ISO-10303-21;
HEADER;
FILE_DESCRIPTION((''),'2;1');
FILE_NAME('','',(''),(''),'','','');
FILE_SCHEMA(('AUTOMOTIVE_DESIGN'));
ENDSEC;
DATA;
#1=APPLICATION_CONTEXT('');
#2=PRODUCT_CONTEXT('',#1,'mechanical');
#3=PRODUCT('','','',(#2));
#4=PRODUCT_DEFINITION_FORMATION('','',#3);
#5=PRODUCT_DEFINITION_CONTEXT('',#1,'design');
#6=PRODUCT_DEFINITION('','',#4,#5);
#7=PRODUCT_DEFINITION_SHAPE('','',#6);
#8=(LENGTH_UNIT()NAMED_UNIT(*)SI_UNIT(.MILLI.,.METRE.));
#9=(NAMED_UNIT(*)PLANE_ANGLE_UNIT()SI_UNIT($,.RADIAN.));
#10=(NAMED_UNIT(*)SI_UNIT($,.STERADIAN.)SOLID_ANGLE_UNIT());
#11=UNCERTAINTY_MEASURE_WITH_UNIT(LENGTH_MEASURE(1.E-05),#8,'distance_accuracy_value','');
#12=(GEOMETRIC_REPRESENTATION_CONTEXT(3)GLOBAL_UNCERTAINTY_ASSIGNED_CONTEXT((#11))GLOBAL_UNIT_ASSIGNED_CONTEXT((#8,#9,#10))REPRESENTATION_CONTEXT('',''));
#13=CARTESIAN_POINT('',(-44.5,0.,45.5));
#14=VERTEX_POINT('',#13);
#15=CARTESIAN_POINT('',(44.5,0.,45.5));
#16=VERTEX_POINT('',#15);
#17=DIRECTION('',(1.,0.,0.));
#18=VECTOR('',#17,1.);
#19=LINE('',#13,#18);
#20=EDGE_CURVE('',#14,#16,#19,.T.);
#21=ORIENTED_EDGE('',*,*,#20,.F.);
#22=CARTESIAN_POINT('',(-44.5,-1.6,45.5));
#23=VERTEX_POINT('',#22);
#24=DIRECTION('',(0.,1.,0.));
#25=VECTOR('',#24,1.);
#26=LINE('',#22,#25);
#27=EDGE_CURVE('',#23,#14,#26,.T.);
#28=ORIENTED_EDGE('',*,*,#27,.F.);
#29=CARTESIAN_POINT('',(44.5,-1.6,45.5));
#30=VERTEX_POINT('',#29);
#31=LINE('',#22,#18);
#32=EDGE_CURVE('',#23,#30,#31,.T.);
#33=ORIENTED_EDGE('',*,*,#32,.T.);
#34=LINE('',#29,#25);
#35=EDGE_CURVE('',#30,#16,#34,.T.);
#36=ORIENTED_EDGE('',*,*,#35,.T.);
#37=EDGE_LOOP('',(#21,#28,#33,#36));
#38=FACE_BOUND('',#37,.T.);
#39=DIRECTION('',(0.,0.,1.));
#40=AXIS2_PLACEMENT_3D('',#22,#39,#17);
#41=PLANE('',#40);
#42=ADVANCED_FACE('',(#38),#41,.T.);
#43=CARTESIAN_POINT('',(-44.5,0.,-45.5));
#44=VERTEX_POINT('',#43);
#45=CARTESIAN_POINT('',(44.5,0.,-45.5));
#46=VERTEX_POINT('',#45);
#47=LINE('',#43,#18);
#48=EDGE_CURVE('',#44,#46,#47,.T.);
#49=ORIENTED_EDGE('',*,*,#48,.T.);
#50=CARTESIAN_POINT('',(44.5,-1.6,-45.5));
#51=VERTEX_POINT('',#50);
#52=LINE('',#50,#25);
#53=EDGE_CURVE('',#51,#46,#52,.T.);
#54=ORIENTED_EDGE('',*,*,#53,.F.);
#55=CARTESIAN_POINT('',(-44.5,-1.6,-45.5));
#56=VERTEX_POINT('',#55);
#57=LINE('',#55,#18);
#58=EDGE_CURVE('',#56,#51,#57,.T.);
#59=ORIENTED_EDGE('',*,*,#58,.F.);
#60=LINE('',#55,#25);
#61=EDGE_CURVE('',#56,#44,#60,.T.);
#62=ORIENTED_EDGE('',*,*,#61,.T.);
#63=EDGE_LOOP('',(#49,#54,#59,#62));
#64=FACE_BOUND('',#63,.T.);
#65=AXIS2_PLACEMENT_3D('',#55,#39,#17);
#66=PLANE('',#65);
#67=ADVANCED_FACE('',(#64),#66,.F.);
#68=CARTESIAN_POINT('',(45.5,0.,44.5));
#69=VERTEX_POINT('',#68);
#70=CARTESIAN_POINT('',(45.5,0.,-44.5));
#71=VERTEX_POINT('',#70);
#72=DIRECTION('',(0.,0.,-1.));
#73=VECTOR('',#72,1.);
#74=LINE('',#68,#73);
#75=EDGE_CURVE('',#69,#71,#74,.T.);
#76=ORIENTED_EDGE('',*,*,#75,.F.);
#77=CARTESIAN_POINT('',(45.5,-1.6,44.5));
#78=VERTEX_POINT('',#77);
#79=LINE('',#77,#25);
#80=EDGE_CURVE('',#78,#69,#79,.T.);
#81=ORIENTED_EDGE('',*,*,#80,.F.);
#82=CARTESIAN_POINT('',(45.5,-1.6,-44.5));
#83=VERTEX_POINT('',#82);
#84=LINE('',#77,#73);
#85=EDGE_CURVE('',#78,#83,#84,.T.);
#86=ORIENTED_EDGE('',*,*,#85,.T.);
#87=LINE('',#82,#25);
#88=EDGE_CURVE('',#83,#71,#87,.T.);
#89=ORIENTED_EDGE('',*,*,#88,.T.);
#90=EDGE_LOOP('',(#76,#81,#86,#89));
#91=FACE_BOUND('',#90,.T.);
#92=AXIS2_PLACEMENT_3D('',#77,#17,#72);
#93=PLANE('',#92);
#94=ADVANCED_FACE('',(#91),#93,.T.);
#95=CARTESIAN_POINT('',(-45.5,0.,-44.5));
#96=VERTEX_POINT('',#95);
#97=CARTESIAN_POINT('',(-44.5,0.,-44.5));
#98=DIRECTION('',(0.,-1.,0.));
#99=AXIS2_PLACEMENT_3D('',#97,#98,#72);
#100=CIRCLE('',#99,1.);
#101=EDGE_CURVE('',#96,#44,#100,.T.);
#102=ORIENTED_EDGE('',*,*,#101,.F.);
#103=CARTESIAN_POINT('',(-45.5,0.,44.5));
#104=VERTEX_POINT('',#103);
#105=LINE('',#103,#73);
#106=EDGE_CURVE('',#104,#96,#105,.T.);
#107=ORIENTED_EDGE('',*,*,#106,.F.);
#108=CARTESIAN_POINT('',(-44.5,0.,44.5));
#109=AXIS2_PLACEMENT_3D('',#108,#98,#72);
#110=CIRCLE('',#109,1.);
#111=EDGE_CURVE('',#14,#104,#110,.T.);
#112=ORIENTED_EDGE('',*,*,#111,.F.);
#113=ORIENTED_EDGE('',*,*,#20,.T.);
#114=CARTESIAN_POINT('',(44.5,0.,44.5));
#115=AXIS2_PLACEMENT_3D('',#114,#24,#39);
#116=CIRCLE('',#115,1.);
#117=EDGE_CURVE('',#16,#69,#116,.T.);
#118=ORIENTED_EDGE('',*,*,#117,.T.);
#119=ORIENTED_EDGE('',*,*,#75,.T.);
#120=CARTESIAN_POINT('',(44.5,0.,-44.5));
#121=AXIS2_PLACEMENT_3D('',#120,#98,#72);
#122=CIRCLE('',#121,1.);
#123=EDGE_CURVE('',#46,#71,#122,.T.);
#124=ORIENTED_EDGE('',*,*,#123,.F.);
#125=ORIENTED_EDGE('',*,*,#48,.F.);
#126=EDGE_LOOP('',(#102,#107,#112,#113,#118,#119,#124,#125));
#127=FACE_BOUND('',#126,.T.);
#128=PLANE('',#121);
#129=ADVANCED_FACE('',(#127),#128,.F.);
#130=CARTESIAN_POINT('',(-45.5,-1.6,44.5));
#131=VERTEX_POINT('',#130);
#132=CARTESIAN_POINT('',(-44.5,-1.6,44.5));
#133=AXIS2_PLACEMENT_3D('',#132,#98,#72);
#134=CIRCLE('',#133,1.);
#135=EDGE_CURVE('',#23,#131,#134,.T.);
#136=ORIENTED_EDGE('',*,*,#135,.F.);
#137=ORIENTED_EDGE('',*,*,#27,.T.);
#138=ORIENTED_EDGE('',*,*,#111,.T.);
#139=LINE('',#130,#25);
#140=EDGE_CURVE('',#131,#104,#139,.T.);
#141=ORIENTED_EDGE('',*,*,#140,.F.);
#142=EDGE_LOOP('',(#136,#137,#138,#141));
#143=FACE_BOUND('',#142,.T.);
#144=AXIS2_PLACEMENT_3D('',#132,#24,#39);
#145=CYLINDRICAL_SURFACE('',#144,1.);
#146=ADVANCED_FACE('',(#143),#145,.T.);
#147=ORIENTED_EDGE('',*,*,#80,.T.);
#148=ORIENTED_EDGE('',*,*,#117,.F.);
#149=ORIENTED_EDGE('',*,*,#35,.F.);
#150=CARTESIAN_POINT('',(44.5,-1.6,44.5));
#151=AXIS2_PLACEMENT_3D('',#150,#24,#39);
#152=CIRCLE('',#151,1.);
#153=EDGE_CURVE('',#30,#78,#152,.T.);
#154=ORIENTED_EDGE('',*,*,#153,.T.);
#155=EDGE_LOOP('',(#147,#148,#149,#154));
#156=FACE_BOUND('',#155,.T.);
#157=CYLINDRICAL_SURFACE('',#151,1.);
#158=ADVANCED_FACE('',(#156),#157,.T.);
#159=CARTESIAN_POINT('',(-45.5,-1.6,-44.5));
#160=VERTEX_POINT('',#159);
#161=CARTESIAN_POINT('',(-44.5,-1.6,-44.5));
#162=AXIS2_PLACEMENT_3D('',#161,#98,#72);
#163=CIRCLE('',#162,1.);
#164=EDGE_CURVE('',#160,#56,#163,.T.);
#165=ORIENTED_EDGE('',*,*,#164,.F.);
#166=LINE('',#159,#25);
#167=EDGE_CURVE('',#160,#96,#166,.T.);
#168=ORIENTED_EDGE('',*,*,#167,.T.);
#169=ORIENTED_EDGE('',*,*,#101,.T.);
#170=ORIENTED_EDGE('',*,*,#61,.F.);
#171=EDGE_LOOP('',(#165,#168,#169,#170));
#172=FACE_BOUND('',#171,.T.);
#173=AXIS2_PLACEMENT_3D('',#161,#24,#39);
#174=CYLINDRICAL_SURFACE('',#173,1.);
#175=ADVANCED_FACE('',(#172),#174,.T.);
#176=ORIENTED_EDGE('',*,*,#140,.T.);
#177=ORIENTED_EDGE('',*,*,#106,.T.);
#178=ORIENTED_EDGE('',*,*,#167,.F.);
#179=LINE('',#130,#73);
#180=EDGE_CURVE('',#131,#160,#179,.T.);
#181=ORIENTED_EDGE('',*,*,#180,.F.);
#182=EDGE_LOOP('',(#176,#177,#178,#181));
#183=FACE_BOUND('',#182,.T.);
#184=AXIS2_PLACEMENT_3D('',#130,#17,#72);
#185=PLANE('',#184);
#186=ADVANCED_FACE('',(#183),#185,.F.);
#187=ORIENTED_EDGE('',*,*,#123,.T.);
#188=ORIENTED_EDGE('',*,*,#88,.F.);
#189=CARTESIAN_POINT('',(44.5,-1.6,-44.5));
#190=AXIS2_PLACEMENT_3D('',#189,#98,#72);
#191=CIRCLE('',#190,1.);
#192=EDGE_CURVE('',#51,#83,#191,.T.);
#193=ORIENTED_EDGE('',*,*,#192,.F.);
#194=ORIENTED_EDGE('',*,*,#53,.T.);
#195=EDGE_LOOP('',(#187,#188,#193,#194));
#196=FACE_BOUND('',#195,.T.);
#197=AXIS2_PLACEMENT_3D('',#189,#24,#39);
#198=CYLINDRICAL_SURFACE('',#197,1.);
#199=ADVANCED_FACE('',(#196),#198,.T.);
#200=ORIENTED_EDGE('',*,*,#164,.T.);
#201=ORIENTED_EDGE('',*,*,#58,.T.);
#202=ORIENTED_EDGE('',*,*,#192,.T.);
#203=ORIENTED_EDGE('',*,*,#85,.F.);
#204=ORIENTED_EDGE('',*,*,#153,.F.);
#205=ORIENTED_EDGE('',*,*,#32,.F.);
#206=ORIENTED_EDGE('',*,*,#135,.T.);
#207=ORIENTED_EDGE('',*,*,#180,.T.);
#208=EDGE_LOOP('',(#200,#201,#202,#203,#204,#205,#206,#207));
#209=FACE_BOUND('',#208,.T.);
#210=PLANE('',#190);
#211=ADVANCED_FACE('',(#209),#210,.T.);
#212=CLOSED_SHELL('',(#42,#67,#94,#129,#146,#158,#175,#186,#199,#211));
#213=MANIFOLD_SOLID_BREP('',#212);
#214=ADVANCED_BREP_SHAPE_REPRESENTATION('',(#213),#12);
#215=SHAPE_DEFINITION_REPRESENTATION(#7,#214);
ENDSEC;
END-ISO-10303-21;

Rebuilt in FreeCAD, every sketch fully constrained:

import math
import FreeCAD as App
import Part
import Sketcher
from FreeCAD import Vector

doc = App.newDocument("Part")
body = doc.addObject("PartDesign::Body", "Body")

sketch1 = doc.addObject("Sketcher::SketchObject", "Sketch")
body.addObject(sketch1)
sketch1.AttachmentSupport = (doc.XZ_Plane, [""])
sketch1.MapMode = "FlatFace"
sketch1.addGeometry([
    Part.LineSegment(Vector(-44.5, 45.5, 0), Vector(44.5, 45.5, 0)),
    Part.ArcOfCircle(Part.Circle(Vector(44.5, 44.5, 0), Vector(0, 0, 1), 1), math.radians(0), math.radians(90)),
    Part.LineSegment(Vector(45.5, 44.5, 0), Vector(45.5, -44.5, 0)),
    Part.ArcOfCircle(Part.Circle(Vector(44.5, -44.5, 0), Vector(0, 0, 1), 1), math.radians(-90), math.radians(0)),
    Part.LineSegment(Vector(44.5, -45.5, 0), Vector(-44.5, -45.5, 0)),
    Part.ArcOfCircle(Part.Circle(Vector(-44.5, -44.5, 0), Vector(0, 0, 1), 1), math.radians(-180), math.radians(-90)),
    Part.LineSegment(Vector(-45.5, -44.5, 0), Vector(-45.5, 44.5, 0)),
    Part.ArcOfCircle(Part.Circle(Vector(-44.5, 44.5, 0), Vector(0, 0, 1), 1), math.radians(90), math.radians(180)),
], False)
sketch1.addConstraint([
    Sketcher.Constraint("Tangent", 0, 2, 1, 2),
    Sketcher.Constraint("Tangent", 1, 1, 2, 1),
    Sketcher.Constraint("Tangent", 2, 2, 3, 2),
    Sketcher.Constraint("Tangent", 3, 1, 4, 1),
    Sketcher.Constraint("Tangent", 4, 2, 5, 2),
    Sketcher.Constraint("Tangent", 5, 1, 6, 1),
    Sketcher.Constraint("Tangent", 6, 2, 7, 2),
    Sketcher.Constraint("Tangent", 7, 1, 0, 1),
    Sketcher.Constraint("Horizontal", 0),
    Sketcher.Constraint("Vertical", 2),
    Sketcher.Constraint("Horizontal", 4),
    Sketcher.Constraint("Vertical", 6),
    Sketcher.Constraint("Equal", 1, 3),
    Sketcher.Constraint("Equal", 3, 5),
    Sketcher.Constraint("Equal", 5, 7),
    Sketcher.Constraint("Symmetric", 1, 3, 5, 3, -1, 1),
    Sketcher.Constraint("Equal", 4, 2),
    Sketcher.Constraint("Radius", 1, 1.0),
    Sketcher.Constraint("DistanceX", 0, 1, 0, 2, 89.0),
])
pad1 = doc.addObject("PartDesign::Pad", "Pad")
body.addObject(pad1)
pad1.Profile = sketch1
pad1.Length = 1.6

doc.recompute()
